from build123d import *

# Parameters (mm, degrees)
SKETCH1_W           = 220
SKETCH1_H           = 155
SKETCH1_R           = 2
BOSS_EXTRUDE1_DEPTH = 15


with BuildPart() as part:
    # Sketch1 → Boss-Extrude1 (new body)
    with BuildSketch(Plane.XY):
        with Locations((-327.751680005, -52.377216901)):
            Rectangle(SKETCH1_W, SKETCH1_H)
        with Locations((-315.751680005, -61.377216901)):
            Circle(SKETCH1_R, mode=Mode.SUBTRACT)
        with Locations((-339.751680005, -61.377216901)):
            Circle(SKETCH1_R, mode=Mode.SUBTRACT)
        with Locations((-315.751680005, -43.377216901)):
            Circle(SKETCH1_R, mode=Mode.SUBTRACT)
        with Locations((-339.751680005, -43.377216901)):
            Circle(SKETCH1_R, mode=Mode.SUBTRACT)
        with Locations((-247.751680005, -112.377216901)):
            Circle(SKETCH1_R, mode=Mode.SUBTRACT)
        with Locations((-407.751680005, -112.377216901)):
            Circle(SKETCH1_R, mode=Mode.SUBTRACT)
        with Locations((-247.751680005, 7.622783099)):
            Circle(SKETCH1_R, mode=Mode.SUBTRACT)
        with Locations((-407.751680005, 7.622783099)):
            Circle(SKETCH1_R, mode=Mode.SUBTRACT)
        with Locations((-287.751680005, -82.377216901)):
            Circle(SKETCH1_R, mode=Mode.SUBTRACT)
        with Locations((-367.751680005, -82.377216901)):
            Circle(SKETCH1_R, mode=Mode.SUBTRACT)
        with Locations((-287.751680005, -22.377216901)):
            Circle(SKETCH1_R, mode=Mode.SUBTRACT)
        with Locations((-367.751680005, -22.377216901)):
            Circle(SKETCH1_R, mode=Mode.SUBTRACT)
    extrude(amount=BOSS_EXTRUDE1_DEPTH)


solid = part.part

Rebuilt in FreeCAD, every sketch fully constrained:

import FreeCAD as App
import Part
import Sketcher

V = App.Vector


def add_polygon(sketch, points):
    """Adds a closed chain of lines whose ends are joined by coincident constraints."""
    first, n = sketch.GeometryCount, len(points)
    for a, b in zip(points, points[1:] + points[:1]):
        sketch.addGeometry(Part.LineSegment(App.Vector(*a, 0), App.Vector(*b, 0)), False)
    for i in range(n):
        sketch.addConstraint(Sketcher.Constraint("Coincident", first + i, 2, first + (i + 1) % n, 1))

doc = App.newDocument("Part")
body = doc.addObject("PartDesign::Body", "Body")

# Sketch on XY plane
sketch1 = body.newObject("Sketcher::SketchObject", "Sketch")
sketch1.AttachmentSupport = (doc.getObject("XY_Plane"), [""])
sketch1.MapMode = "FlatFace"
add_polygon(sketch1, [(-437.8, 25.1), (-437.8, -129.9), (-217.8, -129.9), (-217.8, 25.1)])  # lines 0-3
sketch1.addGeometry(Part.Circle(V(-407.8, -112.4, 0), V(0, 0, 1), 2), False)  # 4
sketch1.addGeometry(Part.Circle(V(-367.8, -82.4, 0), V(0, 0, 1), 2), False)  # 5
sketch1.addGeometry(Part.Circle(V(-339.8, -61.4, 0), V(0, 0, 1), 2), False)  # 6
sketch1.addGeometry(Part.Circle(V(-247.8, -112.4, 0), V(0, 0, 1), 2), False)  # 7
sketch1.addGeometry(Part.Circle(V(-287.8, -82.4, 0), V(0, 0, 1), 2), False)  # 8
sketch1.addGeometry(Part.Circle(V(-315.8, -61.4, 0), V(0, 0, 1), 2), False)  # 9
sketch1.addGeometry(Part.Circle(V(-339.8, -43.4, 0), V(0, 0, 1), 2), False)  # 10
sketch1.addGeometry(Part.Circle(V(-367.8, -22.4, 0), V(0, 0, 1), 2), False)  # 11
sketch1.addGeometry(Part.Circle(V(-407.8, 7.6, 0), V(0, 0, 1), 2), False)  # 12
sketch1.addGeometry(Part.Circle(V(-315.8, -43.4, 0), V(0, 0, 1), 2), False)  # 13
sketch1.addGeometry(Part.Circle(V(-287.8, -22.4, 0), V(0, 0, 1), 2), False)  # 14
sketch1.addGeometry(Part.Circle(V(-247.8, 7.6, 0), V(0, 0, 1), 2), False)  # 15
sketch1.addConstraint([
    Sketcher.Constraint("Vertical", 0),
    Sketcher.Constraint("Horizontal", 1),
    Sketcher.Constraint("Vertical", 2),
    Sketcher.Constraint("Horizontal", 3),
    Sketcher.Constraint("Equal", 4, 5),
    Sketcher.Constraint("Equal", 5, 6),
    Sketcher.Constraint("Equal", 6, 7),
    Sketcher.Constraint("Equal", 7, 8),
    Sketcher.Constraint("Equal", 8, 9),
    Sketcher.Constraint("Equal", 9, 10),
    Sketcher.Constraint("Equal", 10, 11),
    Sketcher.Constraint("Equal", 11, 12),
    Sketcher.Constraint("Equal", 12, 13),
    Sketcher.Constraint("Equal", 13, 14),
    Sketcher.Constraint("Equal", 14, 15),
    Sketcher.Constraint("Horizontal", 4, 3, 7, 3),
    Sketcher.Constraint("Horizontal", 5, 3, 8, 3),
    Sketcher.Constraint("Horizontal", 6, 3, 9, 3),
    Sketcher.Constraint("Horizontal", 10, 3, 13, 3),
    Sketcher.Constraint("Horizontal", 11, 3, 14, 3),
    Sketcher.Constraint("Horizontal", 12, 3, 15, 3),
    Sketcher.Constraint("Vertical", 6, 3, 10, 3),
    Sketcher.Constraint("Vertical", 5, 3, 11, 3),
    Sketcher.Constraint("Vertical", 4, 3, 12, 3),
    Sketcher.Constraint("Vertical", 9, 3, 13, 3),
    Sketcher.Constraint("Vertical", 8, 3, 14, 3),
    Sketcher.Constraint("Vertical", 7, 3, 15, 3),
    Sketcher.Constraint("Diameter", 4, 4.0),
    Sketcher.Constraint("DistanceX", 1, 1, 1, 2, 220.0),
    Sketcher.Constraint("DistanceY", 0, 2, 0, 1, 155.0),
    Sketcher.Constraint("DistanceX", 4, 3, 5, 3, 40.0),
    Sketcher.Constraint("DistanceY", 4, 3, 5, 3, 30.0),
    Sketcher.Constraint("DistanceX", 5, 3, 6, 3, 28.0),
    Sketcher.Constraint("DistanceY", 5, 3, 6, 3, 21.0),
    Sketcher.Constraint("DistanceX", 6, 3, 7, 3, 92.0),
    Sketcher.Constraint("DistanceX", 8, 3, 7, 3, 40.0),
    Sketcher.Constraint("DistanceX", 6, 3, 9, 3, 24.0),
    Sketcher.Constraint("DistanceY", 6, 3, 10, 3, 18.0),
    Sketcher.Constraint("DistanceY", 10, 3, 11, 3, 21.0),
    Sketcher.Constraint("DistanceY", 11, 3, 12, 3, 30.0),
    Sketcher.Constraint("DistanceX", 0, 2, 4, 3, 30.0),
    Sketcher.Constraint("DistanceY", 0, 2, 4, 3, 17.5),
    Sketcher.Constraint("DistanceX", 4, 3, -1, 1, 407.75168),
    Sketcher.Constraint("DistanceY", 4, 3, -1, 1, 112.377217),
])
pad1 = body.newObject("PartDesign::Pad", "Pad")
pad1.Profile = sketch1
pad1.Length = 15

doc.recompute()
